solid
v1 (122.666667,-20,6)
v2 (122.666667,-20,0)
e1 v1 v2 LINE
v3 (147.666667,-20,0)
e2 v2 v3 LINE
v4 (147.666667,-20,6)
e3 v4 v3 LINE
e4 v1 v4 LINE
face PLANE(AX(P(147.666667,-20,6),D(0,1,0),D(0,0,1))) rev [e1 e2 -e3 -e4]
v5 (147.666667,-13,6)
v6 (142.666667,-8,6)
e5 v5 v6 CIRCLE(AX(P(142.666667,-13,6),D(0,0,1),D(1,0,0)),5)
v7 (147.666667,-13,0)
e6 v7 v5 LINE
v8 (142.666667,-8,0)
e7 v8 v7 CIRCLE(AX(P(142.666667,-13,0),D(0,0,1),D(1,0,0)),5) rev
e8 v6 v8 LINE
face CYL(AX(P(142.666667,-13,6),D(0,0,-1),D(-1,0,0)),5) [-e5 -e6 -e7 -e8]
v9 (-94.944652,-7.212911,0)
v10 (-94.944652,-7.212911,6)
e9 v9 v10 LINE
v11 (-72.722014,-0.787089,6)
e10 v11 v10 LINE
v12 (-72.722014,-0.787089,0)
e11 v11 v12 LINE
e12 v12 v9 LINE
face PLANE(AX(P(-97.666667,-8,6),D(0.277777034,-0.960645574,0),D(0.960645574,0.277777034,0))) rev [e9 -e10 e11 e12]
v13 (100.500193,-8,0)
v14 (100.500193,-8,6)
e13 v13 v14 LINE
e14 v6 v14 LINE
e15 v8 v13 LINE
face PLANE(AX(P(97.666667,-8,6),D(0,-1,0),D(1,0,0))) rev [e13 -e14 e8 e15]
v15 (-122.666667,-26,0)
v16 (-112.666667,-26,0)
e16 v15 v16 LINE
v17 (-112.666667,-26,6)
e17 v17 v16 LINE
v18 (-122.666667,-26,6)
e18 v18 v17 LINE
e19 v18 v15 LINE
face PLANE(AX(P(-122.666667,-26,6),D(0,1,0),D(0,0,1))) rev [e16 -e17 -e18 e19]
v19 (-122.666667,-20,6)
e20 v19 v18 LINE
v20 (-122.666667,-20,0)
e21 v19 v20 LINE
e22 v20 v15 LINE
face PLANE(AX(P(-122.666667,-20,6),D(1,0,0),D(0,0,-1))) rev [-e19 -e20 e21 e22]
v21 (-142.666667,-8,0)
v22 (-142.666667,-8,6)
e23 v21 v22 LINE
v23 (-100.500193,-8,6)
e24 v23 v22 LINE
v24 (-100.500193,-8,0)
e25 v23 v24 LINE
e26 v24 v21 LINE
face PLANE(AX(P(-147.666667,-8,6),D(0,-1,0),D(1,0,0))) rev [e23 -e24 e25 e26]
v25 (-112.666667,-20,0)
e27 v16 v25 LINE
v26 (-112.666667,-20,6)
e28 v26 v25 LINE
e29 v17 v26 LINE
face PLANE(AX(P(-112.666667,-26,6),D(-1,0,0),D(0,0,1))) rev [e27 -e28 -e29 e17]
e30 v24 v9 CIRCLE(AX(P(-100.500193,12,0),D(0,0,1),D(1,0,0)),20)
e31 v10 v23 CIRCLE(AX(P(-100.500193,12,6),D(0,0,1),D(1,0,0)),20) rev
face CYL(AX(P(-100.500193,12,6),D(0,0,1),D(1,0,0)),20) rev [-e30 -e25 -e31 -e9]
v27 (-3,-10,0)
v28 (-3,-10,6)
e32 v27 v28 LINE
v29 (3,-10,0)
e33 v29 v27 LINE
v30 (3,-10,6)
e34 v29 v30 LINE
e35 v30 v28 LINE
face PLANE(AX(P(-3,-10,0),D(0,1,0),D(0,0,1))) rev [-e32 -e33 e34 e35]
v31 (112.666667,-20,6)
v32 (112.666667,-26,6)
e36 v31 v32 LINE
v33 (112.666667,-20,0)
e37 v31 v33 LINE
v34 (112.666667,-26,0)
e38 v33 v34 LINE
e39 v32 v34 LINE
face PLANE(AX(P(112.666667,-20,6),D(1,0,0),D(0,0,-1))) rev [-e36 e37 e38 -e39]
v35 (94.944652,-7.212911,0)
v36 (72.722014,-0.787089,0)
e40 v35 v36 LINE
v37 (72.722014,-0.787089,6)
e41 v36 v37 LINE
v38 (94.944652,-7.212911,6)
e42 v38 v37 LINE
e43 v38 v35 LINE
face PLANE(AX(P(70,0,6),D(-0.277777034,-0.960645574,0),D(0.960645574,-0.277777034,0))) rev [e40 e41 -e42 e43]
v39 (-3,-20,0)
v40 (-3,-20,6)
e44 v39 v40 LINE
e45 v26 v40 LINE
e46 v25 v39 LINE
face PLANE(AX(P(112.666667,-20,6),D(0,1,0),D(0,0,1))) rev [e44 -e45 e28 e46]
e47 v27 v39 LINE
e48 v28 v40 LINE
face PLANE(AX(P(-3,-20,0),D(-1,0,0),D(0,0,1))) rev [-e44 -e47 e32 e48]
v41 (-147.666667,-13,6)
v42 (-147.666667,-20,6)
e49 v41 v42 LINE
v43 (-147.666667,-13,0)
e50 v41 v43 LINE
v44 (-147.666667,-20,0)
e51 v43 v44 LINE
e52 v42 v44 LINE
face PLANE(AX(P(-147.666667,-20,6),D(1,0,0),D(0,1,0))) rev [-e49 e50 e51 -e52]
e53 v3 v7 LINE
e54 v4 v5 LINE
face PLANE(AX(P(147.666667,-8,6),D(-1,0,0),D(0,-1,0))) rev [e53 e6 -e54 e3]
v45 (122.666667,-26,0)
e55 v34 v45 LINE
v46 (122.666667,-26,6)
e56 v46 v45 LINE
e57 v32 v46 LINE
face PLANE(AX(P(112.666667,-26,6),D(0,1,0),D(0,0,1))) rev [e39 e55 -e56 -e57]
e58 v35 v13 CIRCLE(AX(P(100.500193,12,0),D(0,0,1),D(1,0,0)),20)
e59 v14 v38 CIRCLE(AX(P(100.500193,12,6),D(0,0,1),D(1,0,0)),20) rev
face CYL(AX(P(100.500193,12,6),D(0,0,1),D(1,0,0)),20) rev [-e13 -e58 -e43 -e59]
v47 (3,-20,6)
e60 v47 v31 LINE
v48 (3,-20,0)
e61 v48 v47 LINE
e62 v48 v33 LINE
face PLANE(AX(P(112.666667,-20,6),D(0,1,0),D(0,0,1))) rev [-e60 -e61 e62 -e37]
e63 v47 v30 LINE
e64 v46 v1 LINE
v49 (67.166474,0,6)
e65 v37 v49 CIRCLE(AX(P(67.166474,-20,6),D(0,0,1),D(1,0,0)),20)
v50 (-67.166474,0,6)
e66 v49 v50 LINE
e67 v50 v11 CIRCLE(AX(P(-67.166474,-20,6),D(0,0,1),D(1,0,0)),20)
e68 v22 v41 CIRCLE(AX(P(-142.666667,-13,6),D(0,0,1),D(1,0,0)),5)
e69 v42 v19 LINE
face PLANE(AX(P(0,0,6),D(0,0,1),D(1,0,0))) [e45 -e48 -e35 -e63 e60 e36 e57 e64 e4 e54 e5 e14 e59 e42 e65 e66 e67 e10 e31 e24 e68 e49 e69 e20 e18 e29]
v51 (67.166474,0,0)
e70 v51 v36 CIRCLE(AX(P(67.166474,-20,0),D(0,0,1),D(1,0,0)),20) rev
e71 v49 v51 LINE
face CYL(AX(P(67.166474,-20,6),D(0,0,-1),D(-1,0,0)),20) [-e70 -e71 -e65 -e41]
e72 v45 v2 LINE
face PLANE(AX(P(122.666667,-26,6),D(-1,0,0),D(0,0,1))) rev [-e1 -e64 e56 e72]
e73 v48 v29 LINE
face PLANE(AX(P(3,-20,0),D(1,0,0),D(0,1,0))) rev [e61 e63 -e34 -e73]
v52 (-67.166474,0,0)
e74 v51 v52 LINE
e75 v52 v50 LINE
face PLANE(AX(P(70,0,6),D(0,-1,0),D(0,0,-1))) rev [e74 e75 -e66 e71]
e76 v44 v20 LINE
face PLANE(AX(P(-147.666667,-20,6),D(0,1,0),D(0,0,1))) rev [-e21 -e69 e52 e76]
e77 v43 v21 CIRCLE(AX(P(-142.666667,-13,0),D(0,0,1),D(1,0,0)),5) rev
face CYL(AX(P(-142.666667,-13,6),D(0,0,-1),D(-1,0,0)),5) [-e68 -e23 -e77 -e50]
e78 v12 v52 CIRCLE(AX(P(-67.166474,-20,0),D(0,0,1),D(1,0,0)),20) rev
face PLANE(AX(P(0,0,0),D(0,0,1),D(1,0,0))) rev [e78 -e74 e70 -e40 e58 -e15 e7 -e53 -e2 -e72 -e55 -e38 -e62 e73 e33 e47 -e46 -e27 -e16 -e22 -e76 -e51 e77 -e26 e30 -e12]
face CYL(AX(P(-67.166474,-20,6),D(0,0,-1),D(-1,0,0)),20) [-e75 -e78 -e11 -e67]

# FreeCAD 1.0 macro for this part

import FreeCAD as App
import Part
import Sketcher

V = App.Vector


def edges_at(feature, points):
    """Names of the edges that pass closest to the given points."""
    edges = feature.Shape.Edges
    near = lambda p: min(range(len(edges)), key=lambda i: edges[i].distToShape(Part.Vertex(*p))[0])
    return sorted({f"Edge{near(p) + 1}" for p in points})

doc = App.newDocument("Part")
body = doc.addObject("PartDesign::Body", "Body")

sketch1 = doc.addObject("Sketcher::SketchObject", "Sketch")
body.addObject(sketch1)
sketch1.AttachmentSupport = (doc.XY_Plane, [""])
sketch1.MapMode = "FlatFace"
sketch1.addGeometry(Part.LineSegment(V(70, 0, 0), V(-70, 0, 0)), False)
sketch1.addGeometry(Part.LineSegment(V(-70, 0, 0), V(-98, -8, 0)), False)
sketch1.addGeometry(Part.LineSegment(V(-98, -8, 0), V(-148, -8, 0)), False)
sketch1.addGeometry(Part.LineSegment(V(-148, -8, 0), V(-148, -20, 0)), False)
sketch1.addGeometry(Part.LineSegment(V(-148, -20, 0), V(-123, -20, 0)), False)
sketch1.addGeometry(Part.LineSegment(V(-123, -20, 0), V(-123, -26, 0)), False)
sketch1.addGeometry(Part.LineSegment(V(-123, -26, 0), V(-113, -26, 0)), False)
sketch1.addGeometry(Part.LineSegment(V(-113, -26, 0), V(-113, -20, 0)), False)
sketch1.addGeometry(Part.LineSegment(V(-113, -20, 0), V(113, -20, 0)), False)
sketch1.addGeometry(Part.LineSegment(V(113, -20, 0), V(113, -26, 0)), False)
sketch1.addGeometry(Part.LineSegment(V(113, -26, 0), V(123, -26, 0)), False)
sketch1.addGeometry(Part.LineSegment(V(123, -26, 0), V(123, -20, 0)), False)
sketch1.addGeometry(Part.LineSegment(V(123, -20, 0), V(148, -20, 0)), False)
sketch1.addGeometry(Part.LineSegment(V(148, -20, 0), V(148, -8, 0)), False)
sketch1.addGeometry(Part.LineSegment(V(148, -8, 0), V(98, -8, 0)), False)
sketch1.addGeometry(Part.LineSegment(V(98, -8, 0), V(70, 0, 0)), False)
sketch1.addConstraint(Sketcher.Constraint("Coincident", 0, 2, 1, 1))
sketch1.addConstraint(Sketcher.Constraint("Coincident", 1, 2, 2, 1))
sketch1.addConstraint(Sketcher.Constraint("Coincident", 2, 2, 3, 1))
sketch1.addConstraint(Sketcher.Constraint("Coincident", 3, 2, 4, 1))
sketch1.addConstraint(Sketcher.Constraint("Coincident", 4, 2, 5, 1))
sketch1.addConstraint(Sketcher.Constraint("Coincident", 5, 2, 6, 1))
sketch1.addConstraint(Sketcher.Constraint("Coincident", 6, 2, 7, 1))
sketch1.addConstraint(Sketcher.Constraint("Coincident", 7, 2, 8, 1))
sketch1.addConstraint(Sketcher.Constraint("Coincident", 8, 2, 9, 1))
sketch1.addConstraint(Sketcher.Constraint("Coincident", 9, 2, 10, 1))
sketch1.addConstraint(Sketcher.Constraint("Coincident", 10, 2, 11, 1))
sketch1.addConstraint(Sketcher.Constraint("Coincident", 11, 2, 12, 1))
sketch1.addConstraint(Sketcher.Constraint("Coincident", 12, 2, 13, 1))
sketch1.addConstraint(Sketcher.Constraint("Coincident", 13, 2, 14, 1))
sketch1.addConstraint(Sketcher.Constraint("Coincident", 14, 2, 15, 1))
sketch1.addConstraint(Sketcher.Constraint("Coincident", 15, 2, 0, 1))
sketch1.addConstraint(Sketcher.Constraint("Horizontal", 0))
sketch1.addConstraint(Sketcher.Constraint("Horizontal", 2))
sketch1.addConstraint(Sketcher.Constraint("Vertical", 3))
sketch1.addConstraint(Sketcher.Constraint("Horizontal", 4))
sketch1.addConstraint(Sketcher.Constraint("Vertical", 5))
sketch1.addConstraint(Sketcher.Constraint("Horizontal", 6))
sketch1.addConstraint(Sketcher.Constraint("Vertical", 7))
sketch1.addConstraint(Sketcher.Constraint("Horizontal", 8))
sketch1.addConstraint(Sketcher.Constraint("Vertical", 9))
sketch1.addConstraint(Sketcher.Constraint("Horizontal", 10))
sketch1.addConstraint(Sketcher.Constraint("Vertical", 11))
sketch1.addConstraint(Sketcher.Constraint("Horizontal", 12))
sketch1.addConstraint(Sketcher.Constraint("Vertical", 13))
sketch1.addConstraint(Sketcher.Constraint("Horizontal", 14))
sketch1.addConstraint(Sketcher.Constraint("Symmetric", 0, 2, 15, 2, -1, 1))
sketch1.addConstraint(Sketcher.Constraint("Symmetric", 6, 2, 9, 2, -2))
sketch1.addConstraint(Sketcher.Constraint("Symmetric", 4, 2, 11, 2, -2))
sketch1.addConstraint(Sketcher.Constraint("Symmetric", 2, 2, 13, 2, -2))
sketch1.addConstraint(Sketcher.Constraint("Horizontal", 4, 2, 7, 2))
sketch1.addConstraint(Sketcher.Constraint("Equal", 2, 14))
sketch1.addConstraint(Sketcher.Constraint("DistanceX", 0, 2, 0, 1, 140.0))
sketch1.addConstraint(Sketcher.Constraint("DistanceX", 2, 2, 2, 1, 50.0))
sketch1.addConstraint(Sketcher.Constraint("DistanceX", 4, 1, 4, 2, 25.0))
sketch1.addConstraint(Sketcher.Constraint("DistanceX", 6, 1, 6, 2, 10.0))
sketch1.addConstraint(Sketcher.Constraint("DistanceY", 3, 2, 3, 1, 12.0))
sketch1.addConstraint(Sketcher.Constraint("DistanceY", 5, 2, 5, 1, 6.0))
sketch1.addConstraint(Sketcher.Constraint("DistanceY", 1, 2, -1, 1, 8.0))
sketch1.addConstraint(Sketcher.Constraint("DistanceX", 8, 1, 8, 2, 225.333333))
pad1 = doc.addObject("PartDesign::Pad", "Pad")
body.addObject(pad1)
pad1.Profile = sketch1
pad1.Length = 6
doc.recompute()

fillet = doc.addObject("PartDesign::Fillet", "Fillet")
body.addObject(fillet)
fillet.Base = (pad1, edges_at(pad1, [(-147.667, -8, 3), (147.667, -8, 3)]))
fillet.Radius = 5
doc.recompute()

fillet2 = doc.addObject("PartDesign::Fillet", "Fillet001")
body.addObject(fillet2)
fillet2.Base = (fillet, edges_at(fillet, [
    (-97.667, -8, 3),
    (-70, 0, 3),
    (70, 0, 3),
    (97.667, -8, 3),
]))
fillet2.Radius = 20

sketch2 = doc.addObject("Sketcher::SketchObject", "Sketch001")
body.addObject(sketch2)
sketch2.AttachmentSupport = (doc.XY_Plane, [""])
sketch2.MapMode = "FlatFace"
sketch2.AttachmentOffset = App.Placement(V(0, 0, 6), App.Rotation())
sketch2.addGeometry(Part.LineSegment(V(-3, -10, 0), V(-3, -20, 0)), False)
sketch2.addGeometry(Part.LineSegment(V(-3, -20, 0), V(3, -20, 0)), False)
sketch2.addGeometry(Part.LineSegment(V(3, -20, 0), V(3, -10, 0)), False)
sketch2.addGeometry(Part.LineSegment(V(3, -10, 0), V(-3, -10, 0)), False)
sketch2.addConstraint(Sketcher.Constraint("Coincident", 0, 2, 1, 1))
sketch2.addConstraint(Sketcher.Constraint("Coincident", 1, 2, 2, 1))
sketch2.addConstraint(Sketcher.Constraint("Coincident", 2, 2, 3, 1))
sketch2.addConstraint(Sketcher.Constraint("Coincident", 3, 2, 0, 1))
sketch2.addConstraint(Sketcher.Constraint("Vertical", 0))
sketch2.addConstraint(Sketcher.Constraint("Horizontal", 1))
sketch2.addConstraint(Sketcher.Constraint("Vertical", 2))
sketch2.addConstraint(Sketcher.Constraint("Horizontal", 3))
sketch2.addConstraint(Sketcher.Constraint("DistanceX", 1, 1, 1, 2, 6.0))
sketch2.addConstraint(Sketcher.Constraint("DistanceY", 0, 2, 0, 1, 10.0))
sketch2.addConstraint(Sketcher.Constraint("DistanceX", 0, 2, -1, 1, 3.0))
sketch2.addConstraint(Sketcher.Constraint("DistanceY", 0, 2, -1, 1, 20.0))
pocket1 = doc.addObject("PartDesign::Pocket", "Pocket")
body.addObject(pocket1)
pocket1.Profile = sketch2
pocket1.Type = "ThroughAll"
pocket1.Midplane = True

doc.recompute()
